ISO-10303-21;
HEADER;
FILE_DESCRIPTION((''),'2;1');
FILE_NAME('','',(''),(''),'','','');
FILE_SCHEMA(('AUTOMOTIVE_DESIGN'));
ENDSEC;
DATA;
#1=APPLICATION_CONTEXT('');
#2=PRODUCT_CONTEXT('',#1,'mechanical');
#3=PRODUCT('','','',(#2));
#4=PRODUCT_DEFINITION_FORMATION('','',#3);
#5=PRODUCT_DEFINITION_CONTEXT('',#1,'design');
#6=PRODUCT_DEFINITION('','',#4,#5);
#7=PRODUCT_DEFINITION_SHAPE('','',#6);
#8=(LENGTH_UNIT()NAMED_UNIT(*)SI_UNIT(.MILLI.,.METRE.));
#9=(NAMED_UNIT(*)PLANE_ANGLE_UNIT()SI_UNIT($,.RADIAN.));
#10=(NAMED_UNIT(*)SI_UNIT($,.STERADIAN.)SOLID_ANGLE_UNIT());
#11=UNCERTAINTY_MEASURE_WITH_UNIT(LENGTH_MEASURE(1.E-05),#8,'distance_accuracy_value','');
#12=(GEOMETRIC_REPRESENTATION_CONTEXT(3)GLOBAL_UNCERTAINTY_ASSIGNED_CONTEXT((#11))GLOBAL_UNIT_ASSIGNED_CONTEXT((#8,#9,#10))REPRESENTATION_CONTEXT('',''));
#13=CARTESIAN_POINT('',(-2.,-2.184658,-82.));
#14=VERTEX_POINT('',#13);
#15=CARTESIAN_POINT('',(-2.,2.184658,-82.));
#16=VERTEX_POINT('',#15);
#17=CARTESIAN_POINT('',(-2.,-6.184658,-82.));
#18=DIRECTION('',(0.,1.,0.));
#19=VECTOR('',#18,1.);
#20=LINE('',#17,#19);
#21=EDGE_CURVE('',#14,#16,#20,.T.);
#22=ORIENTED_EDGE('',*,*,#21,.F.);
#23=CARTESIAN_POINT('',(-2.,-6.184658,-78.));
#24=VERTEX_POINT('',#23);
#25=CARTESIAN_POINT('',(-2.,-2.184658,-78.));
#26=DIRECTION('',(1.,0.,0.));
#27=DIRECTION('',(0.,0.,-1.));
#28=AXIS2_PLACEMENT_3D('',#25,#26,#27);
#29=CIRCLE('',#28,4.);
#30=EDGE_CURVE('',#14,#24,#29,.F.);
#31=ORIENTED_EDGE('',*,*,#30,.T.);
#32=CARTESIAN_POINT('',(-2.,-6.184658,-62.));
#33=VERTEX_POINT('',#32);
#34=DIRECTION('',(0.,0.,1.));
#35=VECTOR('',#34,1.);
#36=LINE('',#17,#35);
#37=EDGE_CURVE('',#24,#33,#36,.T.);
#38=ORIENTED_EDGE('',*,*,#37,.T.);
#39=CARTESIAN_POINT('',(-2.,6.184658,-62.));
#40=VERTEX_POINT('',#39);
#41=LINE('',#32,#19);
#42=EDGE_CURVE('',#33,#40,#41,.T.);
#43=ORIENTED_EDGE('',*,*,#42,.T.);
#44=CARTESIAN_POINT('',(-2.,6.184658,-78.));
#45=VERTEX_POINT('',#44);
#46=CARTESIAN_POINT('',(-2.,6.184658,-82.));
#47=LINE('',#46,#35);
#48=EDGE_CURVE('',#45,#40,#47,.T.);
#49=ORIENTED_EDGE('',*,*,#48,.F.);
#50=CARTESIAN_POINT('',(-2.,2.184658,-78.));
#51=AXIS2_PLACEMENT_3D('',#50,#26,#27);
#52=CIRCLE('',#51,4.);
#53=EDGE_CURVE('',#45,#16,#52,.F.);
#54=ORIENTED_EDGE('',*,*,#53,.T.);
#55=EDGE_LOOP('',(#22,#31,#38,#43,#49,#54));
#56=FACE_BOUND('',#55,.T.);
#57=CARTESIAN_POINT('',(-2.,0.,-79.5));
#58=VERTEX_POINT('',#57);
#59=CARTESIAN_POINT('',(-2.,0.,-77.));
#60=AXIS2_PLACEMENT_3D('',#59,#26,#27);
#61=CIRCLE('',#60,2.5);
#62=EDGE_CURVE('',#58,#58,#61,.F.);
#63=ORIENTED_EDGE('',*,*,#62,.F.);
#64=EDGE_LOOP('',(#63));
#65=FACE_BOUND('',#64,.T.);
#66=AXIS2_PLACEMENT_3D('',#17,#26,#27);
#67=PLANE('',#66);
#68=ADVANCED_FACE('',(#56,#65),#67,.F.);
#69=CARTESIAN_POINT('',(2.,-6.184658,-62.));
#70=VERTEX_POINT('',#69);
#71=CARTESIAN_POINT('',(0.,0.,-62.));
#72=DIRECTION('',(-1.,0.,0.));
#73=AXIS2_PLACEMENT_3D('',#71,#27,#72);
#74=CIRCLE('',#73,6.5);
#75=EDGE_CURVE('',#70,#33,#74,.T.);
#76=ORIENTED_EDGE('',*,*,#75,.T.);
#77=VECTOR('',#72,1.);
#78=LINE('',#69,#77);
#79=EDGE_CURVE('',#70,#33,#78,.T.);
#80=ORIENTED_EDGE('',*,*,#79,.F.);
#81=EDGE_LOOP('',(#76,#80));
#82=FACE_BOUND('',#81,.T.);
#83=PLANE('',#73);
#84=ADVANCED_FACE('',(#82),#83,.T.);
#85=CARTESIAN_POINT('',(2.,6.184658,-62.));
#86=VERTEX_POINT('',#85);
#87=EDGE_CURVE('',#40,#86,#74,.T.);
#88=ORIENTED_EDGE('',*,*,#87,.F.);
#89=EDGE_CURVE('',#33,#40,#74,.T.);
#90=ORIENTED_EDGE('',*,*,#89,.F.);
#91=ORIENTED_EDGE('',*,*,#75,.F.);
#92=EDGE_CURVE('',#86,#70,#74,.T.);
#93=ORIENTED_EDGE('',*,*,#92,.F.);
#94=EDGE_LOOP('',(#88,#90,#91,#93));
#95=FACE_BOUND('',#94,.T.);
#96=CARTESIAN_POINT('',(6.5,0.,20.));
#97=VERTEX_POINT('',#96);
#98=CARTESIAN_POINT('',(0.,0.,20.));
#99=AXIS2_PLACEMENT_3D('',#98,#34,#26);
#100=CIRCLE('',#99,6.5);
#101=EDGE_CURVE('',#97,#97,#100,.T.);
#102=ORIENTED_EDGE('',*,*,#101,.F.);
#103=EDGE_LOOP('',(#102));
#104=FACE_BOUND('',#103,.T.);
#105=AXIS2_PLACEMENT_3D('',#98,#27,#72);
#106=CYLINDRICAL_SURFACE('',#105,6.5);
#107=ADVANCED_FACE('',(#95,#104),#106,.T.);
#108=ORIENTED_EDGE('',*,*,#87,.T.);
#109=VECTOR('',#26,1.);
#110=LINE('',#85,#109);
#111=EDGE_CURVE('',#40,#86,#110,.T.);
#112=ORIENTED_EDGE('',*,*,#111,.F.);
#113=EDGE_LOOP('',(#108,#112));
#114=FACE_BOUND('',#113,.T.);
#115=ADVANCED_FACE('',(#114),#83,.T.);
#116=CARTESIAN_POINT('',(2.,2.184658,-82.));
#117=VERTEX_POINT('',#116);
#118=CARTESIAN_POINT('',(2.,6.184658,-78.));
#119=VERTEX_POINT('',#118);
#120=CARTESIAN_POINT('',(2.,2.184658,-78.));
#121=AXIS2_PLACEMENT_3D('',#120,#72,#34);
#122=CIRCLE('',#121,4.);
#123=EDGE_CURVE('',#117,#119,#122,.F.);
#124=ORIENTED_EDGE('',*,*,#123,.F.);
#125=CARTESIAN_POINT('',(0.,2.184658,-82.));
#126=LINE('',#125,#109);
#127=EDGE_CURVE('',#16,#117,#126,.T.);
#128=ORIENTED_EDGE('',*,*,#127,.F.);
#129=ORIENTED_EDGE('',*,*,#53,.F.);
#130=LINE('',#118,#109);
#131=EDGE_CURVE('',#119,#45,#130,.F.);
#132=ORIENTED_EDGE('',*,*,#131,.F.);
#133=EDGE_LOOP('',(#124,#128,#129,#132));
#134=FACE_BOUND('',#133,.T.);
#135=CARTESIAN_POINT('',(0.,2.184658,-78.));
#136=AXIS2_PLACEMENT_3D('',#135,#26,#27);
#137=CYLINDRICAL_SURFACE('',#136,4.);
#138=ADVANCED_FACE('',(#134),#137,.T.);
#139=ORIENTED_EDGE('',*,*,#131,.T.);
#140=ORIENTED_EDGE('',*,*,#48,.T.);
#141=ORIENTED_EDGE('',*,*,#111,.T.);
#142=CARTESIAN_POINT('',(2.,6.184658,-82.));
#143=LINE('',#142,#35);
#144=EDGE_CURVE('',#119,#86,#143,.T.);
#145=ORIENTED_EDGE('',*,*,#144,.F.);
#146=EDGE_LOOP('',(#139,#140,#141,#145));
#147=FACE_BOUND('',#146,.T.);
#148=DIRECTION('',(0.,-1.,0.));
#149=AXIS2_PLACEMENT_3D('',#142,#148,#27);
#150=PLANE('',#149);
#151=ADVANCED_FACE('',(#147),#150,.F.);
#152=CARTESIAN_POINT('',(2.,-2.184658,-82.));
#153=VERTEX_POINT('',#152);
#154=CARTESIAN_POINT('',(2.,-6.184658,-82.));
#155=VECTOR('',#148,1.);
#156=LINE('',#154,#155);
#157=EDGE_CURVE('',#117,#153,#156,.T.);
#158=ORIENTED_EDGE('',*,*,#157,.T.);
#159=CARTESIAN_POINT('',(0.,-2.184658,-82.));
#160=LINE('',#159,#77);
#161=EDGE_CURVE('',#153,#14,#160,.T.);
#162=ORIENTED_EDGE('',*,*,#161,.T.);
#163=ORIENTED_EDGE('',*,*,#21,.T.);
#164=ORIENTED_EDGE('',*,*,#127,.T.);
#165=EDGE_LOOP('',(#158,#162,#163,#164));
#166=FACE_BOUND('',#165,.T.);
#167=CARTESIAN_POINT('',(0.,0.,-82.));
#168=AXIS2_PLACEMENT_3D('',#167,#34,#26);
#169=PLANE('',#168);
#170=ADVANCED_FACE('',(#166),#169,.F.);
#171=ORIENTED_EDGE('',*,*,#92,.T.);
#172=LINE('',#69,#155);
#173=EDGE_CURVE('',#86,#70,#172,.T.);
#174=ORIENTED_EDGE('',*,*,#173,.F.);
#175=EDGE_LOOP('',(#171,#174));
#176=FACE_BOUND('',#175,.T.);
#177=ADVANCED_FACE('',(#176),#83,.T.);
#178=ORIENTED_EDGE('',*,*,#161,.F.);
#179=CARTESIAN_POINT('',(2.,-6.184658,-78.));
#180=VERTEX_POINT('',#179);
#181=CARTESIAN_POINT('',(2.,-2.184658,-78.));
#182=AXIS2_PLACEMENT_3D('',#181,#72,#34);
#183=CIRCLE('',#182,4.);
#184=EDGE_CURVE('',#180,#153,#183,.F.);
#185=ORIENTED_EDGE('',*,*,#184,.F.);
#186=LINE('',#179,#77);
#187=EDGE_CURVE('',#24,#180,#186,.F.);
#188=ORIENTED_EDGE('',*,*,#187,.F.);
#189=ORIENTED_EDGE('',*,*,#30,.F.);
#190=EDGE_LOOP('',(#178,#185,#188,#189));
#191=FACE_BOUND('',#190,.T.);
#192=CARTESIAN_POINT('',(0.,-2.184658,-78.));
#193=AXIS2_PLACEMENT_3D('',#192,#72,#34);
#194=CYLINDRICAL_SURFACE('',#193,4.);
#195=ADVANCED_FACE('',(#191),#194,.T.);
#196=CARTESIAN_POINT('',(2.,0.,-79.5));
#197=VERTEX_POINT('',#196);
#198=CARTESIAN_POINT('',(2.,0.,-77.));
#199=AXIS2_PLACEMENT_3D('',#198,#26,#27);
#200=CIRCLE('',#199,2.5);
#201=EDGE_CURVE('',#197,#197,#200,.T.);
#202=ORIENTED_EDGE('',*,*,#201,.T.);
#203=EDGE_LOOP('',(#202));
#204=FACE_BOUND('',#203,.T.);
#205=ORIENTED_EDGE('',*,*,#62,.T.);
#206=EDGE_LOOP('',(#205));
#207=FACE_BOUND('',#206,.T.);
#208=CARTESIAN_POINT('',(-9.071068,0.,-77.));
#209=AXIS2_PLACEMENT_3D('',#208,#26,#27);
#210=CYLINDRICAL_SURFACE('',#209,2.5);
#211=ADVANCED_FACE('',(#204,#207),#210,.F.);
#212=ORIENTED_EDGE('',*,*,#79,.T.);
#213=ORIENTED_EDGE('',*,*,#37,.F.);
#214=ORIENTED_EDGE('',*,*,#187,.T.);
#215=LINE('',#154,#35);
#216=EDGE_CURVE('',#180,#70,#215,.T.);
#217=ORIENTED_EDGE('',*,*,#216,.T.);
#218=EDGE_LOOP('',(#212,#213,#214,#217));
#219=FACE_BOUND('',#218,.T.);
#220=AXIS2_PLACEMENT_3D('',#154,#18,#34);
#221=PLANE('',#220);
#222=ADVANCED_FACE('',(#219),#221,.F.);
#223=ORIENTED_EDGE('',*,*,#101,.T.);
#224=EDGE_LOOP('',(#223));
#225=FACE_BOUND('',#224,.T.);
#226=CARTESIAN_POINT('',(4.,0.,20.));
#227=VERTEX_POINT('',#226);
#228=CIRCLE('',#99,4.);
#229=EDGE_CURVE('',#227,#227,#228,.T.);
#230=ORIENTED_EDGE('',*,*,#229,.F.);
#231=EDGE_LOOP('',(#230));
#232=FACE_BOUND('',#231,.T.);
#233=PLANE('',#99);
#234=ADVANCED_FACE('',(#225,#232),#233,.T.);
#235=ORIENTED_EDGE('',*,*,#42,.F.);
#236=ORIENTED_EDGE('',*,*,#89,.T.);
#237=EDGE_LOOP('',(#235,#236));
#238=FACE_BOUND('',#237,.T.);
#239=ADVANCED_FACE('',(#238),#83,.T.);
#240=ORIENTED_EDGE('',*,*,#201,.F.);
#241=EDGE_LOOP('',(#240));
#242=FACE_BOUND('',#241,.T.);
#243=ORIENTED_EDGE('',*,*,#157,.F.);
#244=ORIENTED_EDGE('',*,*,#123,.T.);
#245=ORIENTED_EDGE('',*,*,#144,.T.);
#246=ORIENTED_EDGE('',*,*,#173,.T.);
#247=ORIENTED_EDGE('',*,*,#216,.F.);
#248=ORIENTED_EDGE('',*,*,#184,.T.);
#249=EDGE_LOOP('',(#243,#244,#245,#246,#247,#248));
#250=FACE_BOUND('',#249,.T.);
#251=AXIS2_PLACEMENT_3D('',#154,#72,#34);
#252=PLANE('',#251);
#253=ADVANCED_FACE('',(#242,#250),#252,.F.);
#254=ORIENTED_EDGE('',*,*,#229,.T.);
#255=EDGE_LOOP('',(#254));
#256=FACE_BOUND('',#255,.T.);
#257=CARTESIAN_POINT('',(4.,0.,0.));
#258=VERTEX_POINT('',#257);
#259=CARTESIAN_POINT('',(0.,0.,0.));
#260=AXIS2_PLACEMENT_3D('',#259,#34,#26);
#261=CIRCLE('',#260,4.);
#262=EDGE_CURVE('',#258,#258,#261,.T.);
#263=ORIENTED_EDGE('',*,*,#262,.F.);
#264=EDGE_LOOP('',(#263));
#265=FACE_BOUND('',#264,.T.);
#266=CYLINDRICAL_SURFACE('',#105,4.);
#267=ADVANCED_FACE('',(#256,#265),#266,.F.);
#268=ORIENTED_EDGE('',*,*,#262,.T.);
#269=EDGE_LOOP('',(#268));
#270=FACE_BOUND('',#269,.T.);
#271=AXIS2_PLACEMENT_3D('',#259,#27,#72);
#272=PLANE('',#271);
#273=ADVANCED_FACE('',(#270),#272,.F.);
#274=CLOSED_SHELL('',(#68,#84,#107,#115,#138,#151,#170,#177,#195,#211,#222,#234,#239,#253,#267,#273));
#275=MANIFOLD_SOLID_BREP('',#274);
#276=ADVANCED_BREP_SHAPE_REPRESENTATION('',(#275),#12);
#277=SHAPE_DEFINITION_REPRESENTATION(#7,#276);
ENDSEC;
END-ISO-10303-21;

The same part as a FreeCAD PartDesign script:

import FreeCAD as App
import Part
import Sketcher


def edges_at(feature, points):
    """Names of the edges that pass closest to the given points."""
    edges = feature.Shape.Edges
    near = lambda p: min(range(len(edges)), key=lambda i: edges[i].distToShape(Part.Vertex(*p))[0])
    return sorted({f"Edge{near(p) + 1}" for p in points})


def add_polygon(sketch, points):
    """Adds a closed chain of lines whose ends are joined by coincident constraints."""
    first, n = sketch.GeometryCount, len(points)
    for a, b in zip(points, points[1:] + points[:1]):
        sketch.addGeometry(Part.LineSegment(App.Vector(*a, 0), App.Vector(*b, 0)), False)
    for i in range(n):
        sketch.addConstraint(Sketcher.Constraint("Coincident", first + i, 2, first + (i + 1) % n, 1))

doc = App.newDocument("Part")
body = doc.addObject("PartDesign::Body", "Body")

sketch1 = body.newObject("Sketcher::SketchObject", "Sketch")
sketch1.AttachmentSupport = (doc.getObject("XY_Plane"), [""])
sketch1.MapMode = "FlatFace"
sketch1.addGeometry([
    Part.Circle(App.Vector(0, 0, 0), App.Vector(0, 0, 1), 6.5),
    Part.Circle(App.Vector(0, 0, 0), App.Vector(0, 0, 1), 4),
], False)
sketch1.addConstraint([
    Sketcher.Constraint("Coincident", 0, 3, -1, 1),
    Sketcher.Constraint("Coincident", 1, 3, -1, 1),
    Sketcher.Constraint("Diameter", 0, 13.0),
    Sketcher.Constraint("Diameter", 1, 8.0),
])
pad1 = body.newObject("PartDesign::Pad", "Pad")
pad1.Profile = sketch1
pad1.Length = 20

sketch2 = body.newObject("Sketcher::SketchObject", "Sketch001")
sketch2.AttachmentSupport = (doc.getObject("XY_Plane"), [""])
sketch2.MapMode = "FlatFace"
sketch2.AttachmentOffset = App.Placement(App.Vector(0, 0, -62), App.Rotation())
sketch2.addGeometry(Part.Circle(App.Vector(0, 0, 0), App.Vector(0, 0, 1), 6), False)
sketch2.addConstraint([
    Sketcher.Constraint("Coincident", 0, 3, -1, 1),
    Sketcher.Constraint("Diameter", 0, 13.0),
])
pad2 = body.newObject("PartDesign::Pad", "Pad001")
pad2.Profile = sketch2
pad2.Length = 62

sketch3 = body.newObject("Sketcher::SketchObject", "Sketch002")
sketch3.AttachmentSupport = (doc.getObject("XY_Plane"), [""])
sketch3.MapMode = "FlatFace"
sketch3.AttachmentOffset = App.Placement(App.Vector(0, 0, -62), App.Rotation())
add_polygon(sketch3, [(2, 6.2), (2, -6.2), (-2, -6.2), (-2, 6.2)])
sketch3.addConstraint([
    Sketcher.Constraint("Vertical", 0),
    Sketcher.Constraint("Horizontal", 1),
    Sketcher.Constraint("Vertical", 2),
    Sketcher.Constraint("Horizontal", 3),
    Sketcher.Constraint("Symmetric", 0, 2, 2, 2, -1, 1),
    Sketcher.Constraint("DistanceX", 1, 2, 1, 1, 4.0),
    Sketcher.Constraint("DistanceY", 0, 2, 0, 1, 12.369317),
])
pad3 = body.newObject("PartDesign::Pad", "Pad002")
pad3.Profile = sketch3
pad3.Length = 20
pad3.Reversed = True
doc.recompute()

fillet = body.newObject("PartDesign::Fillet", "Fillet")
fillet.Base = (pad3, edges_at(pad3, [(0, 6.185, -82), (0, -6.185, -82)]))
fillet.Radius = 4

sketch4 = body.newObject("Sketcher::SketchObject", "Sketch003")
sketch4.AttachmentSupport = (doc.getObject("YZ_Plane"), [""])
sketch4.MapMode = "FlatFace"
sketch4.AttachmentOffset = App.Placement(App.Vector(0, 0, 2), App.Rotation())
sketch4.addGeometry(Part.Circle(App.Vector(0, -77, 0), App.Vector(0, 0, 1), 2.5), False)
sketch4.addConstraint([
    Sketcher.Constraint("PointOnObject", 0, 3, -2),
    Sketcher.Constraint("Diameter", 0, 5.0),
    Sketcher.Constraint("DistanceY", 0, 3, -1, 1, 77.0),
])
pocket1 = body.newObject("PartDesign::Pocket", "Pocket")
pocket1.Profile = sketch4
pocket1.Length = 4

doc.recompute()
